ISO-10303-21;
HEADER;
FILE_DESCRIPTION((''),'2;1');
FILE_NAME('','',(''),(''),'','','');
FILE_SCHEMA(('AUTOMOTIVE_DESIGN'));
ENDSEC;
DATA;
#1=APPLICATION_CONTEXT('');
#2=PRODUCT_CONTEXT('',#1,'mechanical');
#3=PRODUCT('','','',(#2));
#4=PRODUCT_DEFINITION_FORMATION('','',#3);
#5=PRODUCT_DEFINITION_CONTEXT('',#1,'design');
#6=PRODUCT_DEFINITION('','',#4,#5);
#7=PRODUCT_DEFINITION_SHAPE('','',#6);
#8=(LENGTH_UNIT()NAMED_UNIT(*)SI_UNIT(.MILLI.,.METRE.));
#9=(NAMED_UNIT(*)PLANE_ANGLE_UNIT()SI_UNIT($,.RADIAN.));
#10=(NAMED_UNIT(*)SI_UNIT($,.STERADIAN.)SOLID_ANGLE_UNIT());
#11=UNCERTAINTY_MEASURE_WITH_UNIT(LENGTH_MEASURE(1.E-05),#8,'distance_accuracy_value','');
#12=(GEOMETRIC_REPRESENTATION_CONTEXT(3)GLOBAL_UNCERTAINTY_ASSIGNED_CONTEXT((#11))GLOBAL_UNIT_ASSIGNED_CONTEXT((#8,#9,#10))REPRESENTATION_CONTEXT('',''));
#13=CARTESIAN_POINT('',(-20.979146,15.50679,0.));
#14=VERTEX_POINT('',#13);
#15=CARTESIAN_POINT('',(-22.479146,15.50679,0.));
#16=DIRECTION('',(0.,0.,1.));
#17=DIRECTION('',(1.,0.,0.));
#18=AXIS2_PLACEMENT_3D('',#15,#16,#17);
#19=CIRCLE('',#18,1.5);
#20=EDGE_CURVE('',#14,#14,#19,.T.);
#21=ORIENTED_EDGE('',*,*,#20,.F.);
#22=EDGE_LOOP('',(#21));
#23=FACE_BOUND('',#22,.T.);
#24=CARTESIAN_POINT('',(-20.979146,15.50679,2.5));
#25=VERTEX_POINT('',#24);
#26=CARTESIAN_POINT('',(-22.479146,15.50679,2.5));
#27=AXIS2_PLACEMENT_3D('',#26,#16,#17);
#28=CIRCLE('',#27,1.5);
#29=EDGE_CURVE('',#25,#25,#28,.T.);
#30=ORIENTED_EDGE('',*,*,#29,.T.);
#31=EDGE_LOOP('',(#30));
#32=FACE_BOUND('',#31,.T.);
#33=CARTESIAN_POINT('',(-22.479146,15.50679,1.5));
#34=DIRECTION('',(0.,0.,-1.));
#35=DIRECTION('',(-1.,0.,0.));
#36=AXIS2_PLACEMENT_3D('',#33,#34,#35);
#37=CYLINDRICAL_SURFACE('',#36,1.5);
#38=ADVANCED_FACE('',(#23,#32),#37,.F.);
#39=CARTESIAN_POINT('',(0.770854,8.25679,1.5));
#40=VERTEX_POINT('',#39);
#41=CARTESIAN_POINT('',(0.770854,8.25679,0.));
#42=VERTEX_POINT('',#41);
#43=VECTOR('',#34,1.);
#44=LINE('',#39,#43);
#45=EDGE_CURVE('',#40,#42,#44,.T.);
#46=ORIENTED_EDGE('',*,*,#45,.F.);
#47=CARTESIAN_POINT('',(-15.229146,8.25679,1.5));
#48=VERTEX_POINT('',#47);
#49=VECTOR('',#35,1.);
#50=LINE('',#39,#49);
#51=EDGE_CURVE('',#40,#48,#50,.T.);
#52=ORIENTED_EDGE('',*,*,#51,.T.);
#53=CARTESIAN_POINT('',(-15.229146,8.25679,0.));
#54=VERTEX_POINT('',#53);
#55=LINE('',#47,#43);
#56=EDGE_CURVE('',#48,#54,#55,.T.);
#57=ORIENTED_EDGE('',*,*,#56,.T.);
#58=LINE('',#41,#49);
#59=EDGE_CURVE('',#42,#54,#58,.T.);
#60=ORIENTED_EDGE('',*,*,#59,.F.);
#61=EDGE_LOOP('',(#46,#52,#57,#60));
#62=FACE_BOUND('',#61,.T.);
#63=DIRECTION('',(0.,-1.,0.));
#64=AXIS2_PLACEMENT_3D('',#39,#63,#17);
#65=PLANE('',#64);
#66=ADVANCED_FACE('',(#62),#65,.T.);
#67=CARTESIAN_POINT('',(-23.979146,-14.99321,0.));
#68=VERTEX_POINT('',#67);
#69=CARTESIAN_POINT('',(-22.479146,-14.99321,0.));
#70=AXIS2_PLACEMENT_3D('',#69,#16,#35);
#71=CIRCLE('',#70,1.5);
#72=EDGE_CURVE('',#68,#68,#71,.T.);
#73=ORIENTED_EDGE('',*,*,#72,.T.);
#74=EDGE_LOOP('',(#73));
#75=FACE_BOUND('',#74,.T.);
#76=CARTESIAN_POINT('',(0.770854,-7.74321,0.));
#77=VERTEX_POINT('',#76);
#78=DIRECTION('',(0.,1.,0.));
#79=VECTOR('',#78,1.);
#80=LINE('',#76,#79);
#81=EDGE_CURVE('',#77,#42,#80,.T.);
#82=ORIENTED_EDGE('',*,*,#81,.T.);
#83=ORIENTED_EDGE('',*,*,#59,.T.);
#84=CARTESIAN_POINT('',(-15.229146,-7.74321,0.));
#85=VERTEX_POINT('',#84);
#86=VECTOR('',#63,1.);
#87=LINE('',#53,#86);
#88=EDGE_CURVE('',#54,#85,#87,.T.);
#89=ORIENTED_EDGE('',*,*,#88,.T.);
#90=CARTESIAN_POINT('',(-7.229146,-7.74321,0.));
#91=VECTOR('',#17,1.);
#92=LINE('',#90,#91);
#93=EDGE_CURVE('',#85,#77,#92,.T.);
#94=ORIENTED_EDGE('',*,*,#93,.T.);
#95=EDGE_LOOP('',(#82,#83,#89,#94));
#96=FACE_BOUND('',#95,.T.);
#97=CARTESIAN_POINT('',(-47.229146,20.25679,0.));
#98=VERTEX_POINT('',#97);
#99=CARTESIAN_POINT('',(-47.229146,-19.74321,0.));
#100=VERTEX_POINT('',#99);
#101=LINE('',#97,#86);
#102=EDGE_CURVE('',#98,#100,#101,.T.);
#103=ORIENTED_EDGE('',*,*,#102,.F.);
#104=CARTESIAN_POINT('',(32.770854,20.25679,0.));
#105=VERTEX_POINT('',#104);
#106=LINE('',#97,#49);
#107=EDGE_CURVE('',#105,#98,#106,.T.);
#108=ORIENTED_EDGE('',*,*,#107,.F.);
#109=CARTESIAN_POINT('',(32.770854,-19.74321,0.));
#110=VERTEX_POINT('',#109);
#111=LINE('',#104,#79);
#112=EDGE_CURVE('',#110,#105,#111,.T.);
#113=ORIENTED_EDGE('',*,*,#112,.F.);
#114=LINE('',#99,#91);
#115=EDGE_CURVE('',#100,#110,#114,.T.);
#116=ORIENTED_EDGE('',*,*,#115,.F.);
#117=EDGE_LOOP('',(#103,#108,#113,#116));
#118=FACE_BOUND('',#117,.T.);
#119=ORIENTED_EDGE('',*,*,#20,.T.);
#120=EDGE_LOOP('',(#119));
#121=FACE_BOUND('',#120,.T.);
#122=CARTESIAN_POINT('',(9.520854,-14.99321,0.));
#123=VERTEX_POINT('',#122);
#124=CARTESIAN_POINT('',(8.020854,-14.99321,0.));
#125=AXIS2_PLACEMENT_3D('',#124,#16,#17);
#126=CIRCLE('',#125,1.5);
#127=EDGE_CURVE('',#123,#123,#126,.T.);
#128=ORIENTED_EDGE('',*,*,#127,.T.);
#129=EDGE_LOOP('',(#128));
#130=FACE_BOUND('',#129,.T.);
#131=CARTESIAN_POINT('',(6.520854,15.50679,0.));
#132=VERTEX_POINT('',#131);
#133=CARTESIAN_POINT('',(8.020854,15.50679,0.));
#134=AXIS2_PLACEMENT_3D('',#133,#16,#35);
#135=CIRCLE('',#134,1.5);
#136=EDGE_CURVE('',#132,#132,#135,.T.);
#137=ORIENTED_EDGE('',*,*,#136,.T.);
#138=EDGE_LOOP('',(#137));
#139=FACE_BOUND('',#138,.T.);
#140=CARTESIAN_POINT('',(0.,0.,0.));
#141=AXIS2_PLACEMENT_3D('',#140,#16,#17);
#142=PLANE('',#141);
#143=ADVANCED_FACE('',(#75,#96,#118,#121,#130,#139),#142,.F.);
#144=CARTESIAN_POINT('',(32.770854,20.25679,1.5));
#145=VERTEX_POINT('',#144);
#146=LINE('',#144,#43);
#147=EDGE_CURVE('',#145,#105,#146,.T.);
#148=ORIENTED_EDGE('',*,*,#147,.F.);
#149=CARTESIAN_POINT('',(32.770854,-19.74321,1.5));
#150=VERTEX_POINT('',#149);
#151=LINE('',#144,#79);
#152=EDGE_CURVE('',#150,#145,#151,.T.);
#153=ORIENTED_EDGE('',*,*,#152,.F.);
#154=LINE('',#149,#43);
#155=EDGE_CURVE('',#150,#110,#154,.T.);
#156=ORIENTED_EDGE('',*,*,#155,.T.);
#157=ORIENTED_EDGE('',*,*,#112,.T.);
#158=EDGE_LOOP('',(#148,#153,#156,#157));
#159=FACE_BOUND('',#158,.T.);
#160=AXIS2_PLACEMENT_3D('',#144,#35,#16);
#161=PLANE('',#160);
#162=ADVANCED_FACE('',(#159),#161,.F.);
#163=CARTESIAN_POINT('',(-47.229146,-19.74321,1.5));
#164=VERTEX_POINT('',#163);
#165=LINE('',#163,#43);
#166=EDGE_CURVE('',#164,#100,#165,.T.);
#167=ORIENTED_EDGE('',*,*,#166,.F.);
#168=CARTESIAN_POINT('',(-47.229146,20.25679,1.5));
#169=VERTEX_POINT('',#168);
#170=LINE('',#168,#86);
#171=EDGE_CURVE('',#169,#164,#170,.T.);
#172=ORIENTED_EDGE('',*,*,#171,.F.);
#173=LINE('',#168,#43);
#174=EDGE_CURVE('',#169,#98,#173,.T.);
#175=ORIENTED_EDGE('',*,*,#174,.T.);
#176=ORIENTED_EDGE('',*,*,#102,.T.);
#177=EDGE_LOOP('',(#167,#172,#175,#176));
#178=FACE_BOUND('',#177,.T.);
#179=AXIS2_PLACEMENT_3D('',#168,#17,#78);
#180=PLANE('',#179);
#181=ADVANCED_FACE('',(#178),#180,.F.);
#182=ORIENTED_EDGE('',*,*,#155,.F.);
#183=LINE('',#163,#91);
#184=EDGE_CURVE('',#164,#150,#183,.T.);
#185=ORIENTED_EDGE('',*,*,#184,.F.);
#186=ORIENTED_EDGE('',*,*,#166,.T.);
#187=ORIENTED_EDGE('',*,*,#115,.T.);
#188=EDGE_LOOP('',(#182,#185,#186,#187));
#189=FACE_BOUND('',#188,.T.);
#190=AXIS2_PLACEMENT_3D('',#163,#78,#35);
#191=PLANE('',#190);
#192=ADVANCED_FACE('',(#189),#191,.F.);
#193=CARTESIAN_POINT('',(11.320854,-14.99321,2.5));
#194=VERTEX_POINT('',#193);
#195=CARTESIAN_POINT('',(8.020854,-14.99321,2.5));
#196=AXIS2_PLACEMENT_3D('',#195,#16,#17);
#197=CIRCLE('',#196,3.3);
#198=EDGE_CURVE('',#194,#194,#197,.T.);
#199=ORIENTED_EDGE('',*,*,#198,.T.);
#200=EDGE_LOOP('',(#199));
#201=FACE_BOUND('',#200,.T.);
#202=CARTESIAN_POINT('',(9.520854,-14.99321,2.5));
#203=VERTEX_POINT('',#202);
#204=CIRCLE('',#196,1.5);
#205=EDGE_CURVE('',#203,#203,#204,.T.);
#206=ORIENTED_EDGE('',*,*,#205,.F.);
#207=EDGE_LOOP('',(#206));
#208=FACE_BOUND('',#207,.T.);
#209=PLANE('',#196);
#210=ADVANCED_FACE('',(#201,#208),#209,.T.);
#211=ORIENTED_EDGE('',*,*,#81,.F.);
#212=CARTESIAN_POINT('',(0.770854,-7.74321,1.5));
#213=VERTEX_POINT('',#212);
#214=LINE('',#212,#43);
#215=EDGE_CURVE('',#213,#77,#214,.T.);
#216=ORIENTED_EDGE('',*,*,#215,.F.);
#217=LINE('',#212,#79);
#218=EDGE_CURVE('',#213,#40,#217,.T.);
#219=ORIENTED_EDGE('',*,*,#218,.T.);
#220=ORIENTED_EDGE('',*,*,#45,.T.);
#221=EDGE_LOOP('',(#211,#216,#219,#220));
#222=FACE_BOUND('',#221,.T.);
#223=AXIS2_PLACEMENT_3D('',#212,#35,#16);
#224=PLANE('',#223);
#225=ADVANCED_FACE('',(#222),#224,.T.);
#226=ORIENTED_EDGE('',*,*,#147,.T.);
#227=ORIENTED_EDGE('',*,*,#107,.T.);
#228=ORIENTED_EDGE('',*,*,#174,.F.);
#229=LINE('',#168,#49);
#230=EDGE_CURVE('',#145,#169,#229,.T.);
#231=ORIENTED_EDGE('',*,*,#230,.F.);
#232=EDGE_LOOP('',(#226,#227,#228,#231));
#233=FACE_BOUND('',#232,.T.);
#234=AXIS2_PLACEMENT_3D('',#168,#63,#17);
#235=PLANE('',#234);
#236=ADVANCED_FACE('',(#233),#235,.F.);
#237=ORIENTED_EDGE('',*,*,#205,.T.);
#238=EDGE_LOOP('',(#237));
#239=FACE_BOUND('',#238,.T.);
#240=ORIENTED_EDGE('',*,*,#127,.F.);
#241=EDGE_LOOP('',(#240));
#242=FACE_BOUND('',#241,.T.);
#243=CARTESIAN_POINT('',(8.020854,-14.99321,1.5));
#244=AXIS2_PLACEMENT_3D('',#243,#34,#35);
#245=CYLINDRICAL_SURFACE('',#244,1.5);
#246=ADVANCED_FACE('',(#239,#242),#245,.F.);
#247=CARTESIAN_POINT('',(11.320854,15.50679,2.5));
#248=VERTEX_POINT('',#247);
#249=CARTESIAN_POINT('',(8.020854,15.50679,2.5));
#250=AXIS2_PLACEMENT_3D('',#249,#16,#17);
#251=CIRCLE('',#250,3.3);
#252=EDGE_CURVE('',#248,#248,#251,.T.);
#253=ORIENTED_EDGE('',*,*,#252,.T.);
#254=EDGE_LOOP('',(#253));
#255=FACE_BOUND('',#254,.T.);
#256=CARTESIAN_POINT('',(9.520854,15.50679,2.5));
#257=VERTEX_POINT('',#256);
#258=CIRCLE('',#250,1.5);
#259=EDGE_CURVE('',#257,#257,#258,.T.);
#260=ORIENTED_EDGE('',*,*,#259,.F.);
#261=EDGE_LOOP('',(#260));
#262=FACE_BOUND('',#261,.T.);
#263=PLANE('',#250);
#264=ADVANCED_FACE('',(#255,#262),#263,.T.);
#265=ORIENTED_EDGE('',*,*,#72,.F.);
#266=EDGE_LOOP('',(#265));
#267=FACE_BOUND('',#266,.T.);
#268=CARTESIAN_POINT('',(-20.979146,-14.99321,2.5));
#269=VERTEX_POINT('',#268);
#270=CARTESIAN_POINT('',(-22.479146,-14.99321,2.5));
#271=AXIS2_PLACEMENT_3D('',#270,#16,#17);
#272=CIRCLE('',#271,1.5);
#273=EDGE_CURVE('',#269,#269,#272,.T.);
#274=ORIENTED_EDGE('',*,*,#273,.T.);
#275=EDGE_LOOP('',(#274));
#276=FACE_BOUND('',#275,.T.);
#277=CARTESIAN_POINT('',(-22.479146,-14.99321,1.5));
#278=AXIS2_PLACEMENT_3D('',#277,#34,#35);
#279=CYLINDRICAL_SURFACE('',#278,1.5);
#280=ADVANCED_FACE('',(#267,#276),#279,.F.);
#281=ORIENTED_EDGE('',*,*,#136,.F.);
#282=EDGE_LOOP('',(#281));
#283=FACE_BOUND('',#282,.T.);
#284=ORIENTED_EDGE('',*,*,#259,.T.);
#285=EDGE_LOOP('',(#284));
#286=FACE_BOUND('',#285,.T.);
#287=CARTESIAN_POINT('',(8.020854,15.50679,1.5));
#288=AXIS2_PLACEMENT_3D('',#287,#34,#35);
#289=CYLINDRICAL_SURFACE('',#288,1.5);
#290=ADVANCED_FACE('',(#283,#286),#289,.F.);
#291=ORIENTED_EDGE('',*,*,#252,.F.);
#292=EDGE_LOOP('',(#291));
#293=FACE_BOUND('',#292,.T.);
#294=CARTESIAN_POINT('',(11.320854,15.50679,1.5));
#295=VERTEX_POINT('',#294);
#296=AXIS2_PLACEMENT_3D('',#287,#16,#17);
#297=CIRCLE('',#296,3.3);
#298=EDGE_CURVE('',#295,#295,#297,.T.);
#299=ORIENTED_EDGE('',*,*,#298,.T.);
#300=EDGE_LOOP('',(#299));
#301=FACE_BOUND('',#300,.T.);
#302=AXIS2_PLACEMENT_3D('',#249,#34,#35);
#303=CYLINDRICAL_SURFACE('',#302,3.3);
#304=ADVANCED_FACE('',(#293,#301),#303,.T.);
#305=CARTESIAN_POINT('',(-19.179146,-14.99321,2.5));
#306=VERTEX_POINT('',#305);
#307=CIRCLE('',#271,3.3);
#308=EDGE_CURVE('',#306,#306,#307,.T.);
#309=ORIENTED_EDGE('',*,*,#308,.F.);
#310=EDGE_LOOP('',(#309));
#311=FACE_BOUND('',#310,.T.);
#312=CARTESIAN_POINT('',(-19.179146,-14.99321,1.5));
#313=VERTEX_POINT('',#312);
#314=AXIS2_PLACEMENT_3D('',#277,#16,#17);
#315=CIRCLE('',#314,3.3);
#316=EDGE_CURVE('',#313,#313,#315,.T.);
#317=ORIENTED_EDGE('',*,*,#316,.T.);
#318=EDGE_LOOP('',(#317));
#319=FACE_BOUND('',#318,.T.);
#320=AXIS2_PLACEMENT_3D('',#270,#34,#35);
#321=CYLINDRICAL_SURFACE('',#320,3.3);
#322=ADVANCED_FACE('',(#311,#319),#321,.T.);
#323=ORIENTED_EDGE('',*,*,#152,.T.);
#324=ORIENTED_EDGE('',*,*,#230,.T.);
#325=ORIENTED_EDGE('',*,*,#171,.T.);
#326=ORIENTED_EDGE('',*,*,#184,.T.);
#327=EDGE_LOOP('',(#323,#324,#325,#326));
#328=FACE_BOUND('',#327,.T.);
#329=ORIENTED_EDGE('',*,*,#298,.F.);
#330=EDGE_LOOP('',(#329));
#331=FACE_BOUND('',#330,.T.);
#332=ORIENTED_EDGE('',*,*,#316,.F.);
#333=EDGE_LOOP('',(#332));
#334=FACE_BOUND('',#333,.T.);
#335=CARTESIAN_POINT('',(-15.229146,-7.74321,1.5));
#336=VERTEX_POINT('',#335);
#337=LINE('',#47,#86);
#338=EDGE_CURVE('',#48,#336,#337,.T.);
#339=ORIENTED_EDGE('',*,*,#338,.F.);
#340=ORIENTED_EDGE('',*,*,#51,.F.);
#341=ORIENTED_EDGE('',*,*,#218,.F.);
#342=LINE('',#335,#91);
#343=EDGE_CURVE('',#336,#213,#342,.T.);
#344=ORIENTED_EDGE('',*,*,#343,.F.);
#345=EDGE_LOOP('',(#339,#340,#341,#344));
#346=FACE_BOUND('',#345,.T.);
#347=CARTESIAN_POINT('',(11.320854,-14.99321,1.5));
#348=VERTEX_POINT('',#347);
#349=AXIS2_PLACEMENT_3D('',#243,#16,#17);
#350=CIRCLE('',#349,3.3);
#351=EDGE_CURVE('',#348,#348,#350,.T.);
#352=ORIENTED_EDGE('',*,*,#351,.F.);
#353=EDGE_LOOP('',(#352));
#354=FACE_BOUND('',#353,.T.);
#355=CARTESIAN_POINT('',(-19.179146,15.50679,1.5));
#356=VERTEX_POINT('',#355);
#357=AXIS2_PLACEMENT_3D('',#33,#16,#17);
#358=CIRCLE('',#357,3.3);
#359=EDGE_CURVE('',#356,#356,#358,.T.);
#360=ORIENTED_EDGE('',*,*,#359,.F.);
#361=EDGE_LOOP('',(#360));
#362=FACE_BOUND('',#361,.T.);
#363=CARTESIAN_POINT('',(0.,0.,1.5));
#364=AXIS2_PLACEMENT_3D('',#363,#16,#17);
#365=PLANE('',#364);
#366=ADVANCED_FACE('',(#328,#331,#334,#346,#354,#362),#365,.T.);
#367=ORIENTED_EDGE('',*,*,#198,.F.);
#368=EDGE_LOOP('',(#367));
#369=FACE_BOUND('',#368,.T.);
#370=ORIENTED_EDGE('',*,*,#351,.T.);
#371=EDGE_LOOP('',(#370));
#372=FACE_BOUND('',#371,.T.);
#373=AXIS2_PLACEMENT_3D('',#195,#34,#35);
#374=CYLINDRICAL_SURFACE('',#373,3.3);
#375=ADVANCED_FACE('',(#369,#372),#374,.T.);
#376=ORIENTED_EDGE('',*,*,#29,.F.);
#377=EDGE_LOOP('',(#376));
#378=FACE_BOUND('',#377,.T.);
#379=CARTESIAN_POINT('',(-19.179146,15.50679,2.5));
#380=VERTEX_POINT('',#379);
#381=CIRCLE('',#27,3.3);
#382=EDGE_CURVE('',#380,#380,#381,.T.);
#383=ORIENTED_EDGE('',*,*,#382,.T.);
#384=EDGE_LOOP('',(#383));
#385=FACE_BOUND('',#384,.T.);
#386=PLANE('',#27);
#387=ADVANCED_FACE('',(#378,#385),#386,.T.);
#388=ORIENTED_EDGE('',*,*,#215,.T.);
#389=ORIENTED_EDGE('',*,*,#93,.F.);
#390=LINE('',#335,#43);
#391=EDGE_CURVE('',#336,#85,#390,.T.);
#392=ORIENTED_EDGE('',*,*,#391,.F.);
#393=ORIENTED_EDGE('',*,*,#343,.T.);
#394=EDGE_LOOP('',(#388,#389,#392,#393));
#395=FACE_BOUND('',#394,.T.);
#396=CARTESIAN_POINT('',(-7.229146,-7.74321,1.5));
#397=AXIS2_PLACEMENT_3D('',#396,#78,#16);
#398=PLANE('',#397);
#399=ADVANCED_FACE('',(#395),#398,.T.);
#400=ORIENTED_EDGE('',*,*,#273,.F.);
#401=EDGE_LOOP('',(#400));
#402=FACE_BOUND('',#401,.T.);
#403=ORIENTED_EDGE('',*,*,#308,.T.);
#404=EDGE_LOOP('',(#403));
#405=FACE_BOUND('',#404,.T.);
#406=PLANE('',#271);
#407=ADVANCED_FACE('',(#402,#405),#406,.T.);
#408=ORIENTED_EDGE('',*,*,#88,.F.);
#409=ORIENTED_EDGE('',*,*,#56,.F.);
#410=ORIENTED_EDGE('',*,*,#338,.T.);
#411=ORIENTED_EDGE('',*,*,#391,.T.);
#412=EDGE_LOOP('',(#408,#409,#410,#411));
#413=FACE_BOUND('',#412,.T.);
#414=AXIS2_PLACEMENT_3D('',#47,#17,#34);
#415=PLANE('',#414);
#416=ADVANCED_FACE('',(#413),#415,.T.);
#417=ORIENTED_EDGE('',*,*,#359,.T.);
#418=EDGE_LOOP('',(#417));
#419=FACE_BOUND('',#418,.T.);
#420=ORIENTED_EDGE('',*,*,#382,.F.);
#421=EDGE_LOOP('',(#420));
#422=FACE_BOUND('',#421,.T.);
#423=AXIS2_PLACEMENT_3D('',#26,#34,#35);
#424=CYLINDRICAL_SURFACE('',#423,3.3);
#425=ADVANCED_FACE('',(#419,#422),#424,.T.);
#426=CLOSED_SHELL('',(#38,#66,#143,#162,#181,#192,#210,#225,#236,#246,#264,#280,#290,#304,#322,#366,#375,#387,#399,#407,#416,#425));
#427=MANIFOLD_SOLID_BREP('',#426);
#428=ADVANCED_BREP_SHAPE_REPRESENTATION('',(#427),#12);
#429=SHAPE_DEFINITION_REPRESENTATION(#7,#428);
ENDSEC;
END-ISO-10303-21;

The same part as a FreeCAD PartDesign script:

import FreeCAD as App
import Part
import Sketcher
from FreeCAD import Vector


def add_polygon(sketch, points):
    """Adds a closed chain of lines whose ends are joined by coincident constraints."""
    first, n = sketch.GeometryCount, len(points)
    for a, b in zip(points, points[1:] + points[:1]):
        sketch.addGeometry(Part.LineSegment(App.Vector(*a, 0), App.Vector(*b, 0)), False)
    for i in range(n):
        sketch.addConstraint(Sketcher.Constraint("Coincident", first + i, 2, first + (i + 1) % n, 1))

doc = App.newDocument("Part")
params = doc.addObject("Spreadsheet::Sheet", "Params")
for row, (alias, value) in enumerate([
    ("sketch1_diameter", "3 mm"),
    ("sketch1_width", "80 mm"),
    ("sketch1_width2", "16 mm"),
    ("sketch1_height", "40 mm"),
    ("pad1_length", "1.5 mm"),
    ("sketch2_diameter", "3 mm"),
    ("sketch2_diameter2", "6.6 mm"),
    ("pad2_length", "1 mm"),
], start=1):
    params.set(f"A{row}", alias)
    params.set(f"B{row}", "=" + value)
    params.setAlias(f"B{row}", alias)

body = doc.addObject("PartDesign::Body", "Body")

sketch1 = body.newObject("Sketcher::SketchObject", "Sketch")
sketch1.AttachmentSupport = (doc.getObject("XY_Plane"), [""])
sketch1.MapMode = "FlatFace"
add_polygon(sketch1, [(-47.229146, 20.25679), (-47.229146, -19.74321), (32.770854, -19.74321), (32.770854, 20.25679)])
sketch1.addGeometry(Part.Circle(Vector(-22.479146, -14.99321, 0), Vector(0, 0, 1), 1.5), False)
sketch1.addGeometry(Part.Circle(Vector(8.020854, -14.99321, 0), Vector(0, 0, 1), 1.5), False)
sketch1.addGeometry(Part.Circle(Vector(-22.479146, 15.50679, 0), Vector(0, 0, 1), 1.5), False)
add_polygon(sketch1, [(0.770854, -7.74321), (-15.229146, -7.74321), (-15.229146, 8.25679), (0.770854, 8.25679)])
sketch1.addGeometry(Part.Circle(Vector(8.020854, 15.50679, 0), Vector(0, 0, 1), 1.5), False)
sketch1.addConstraint(Sketcher.Constraint("Vertical", 0))
sketch1.addConstraint(Sketcher.Constraint("Horizontal", 1))
sketch1.addConstraint(Sketcher.Constraint("Vertical", 2))
sketch1.addConstraint(Sketcher.Constraint("Horizontal", 3))
sketch1.addConstraint(Sketcher.Constraint("Horizontal", 7))
sketch1.addConstraint(Sketcher.Constraint("Vertical", 8))
sketch1.addConstraint(Sketcher.Constraint("Horizontal", 9))
sketch1.addConstraint(Sketcher.Constraint("Vertical", 10))
sketch1.addConstraint(Sketcher.Constraint("Equal", 4, 5))
sketch1.addConstraint(Sketcher.Constraint("Equal", 5, 6))
sketch1.addConstraint(Sketcher.Constraint("Equal", 6, 11))
sketch1.addConstraint(Sketcher.Constraint("Horizontal", 4, 3, 5, 3))
sketch1.addConstraint(Sketcher.Constraint("Horizontal", 6, 3, 11, 3))
sketch1.addConstraint(Sketcher.Constraint("Vertical", 4, 3, 6, 3))
sketch1.addConstraint(Sketcher.Constraint("Vertical", 5, 3, 11, 3))
sketch1.addConstraint(Sketcher.Constraint("Equal", 9, 8))
sketch1.addConstraint(Sketcher.Constraint("Diameter", 4, 3.0))
sketch1.addConstraint(Sketcher.Constraint("DistanceX", 1, 1, 1, 2, 80.0))
sketch1.addConstraint(Sketcher.Constraint("DistanceX", 7, 2, 7, 1, 16.0))
sketch1.addConstraint(Sketcher.Constraint("DistanceY", 0, 2, 0, 1, 40.0))
sketch1.addConstraint(Sketcher.Constraint("DistanceX", 0, 2, 7, 2, 32.0))
sketch1.addConstraint(Sketcher.Constraint("DistanceY", 0, 2, 7, 2, 12.0))
sketch1.addConstraint(Sketcher.Constraint("DistanceX", 4, 3, 5, 3, 30.5))
sketch1.addConstraint(Sketcher.Constraint("DistanceY", 4, 3, 6, 3, 30.5))
sketch1.addConstraint(Sketcher.Constraint("DistanceX", 0, 2, 4, 3, 24.75))
sketch1.addConstraint(Sketcher.Constraint("DistanceY", 0, 2, 4, 3, 4.75))
sketch1.addConstraint(Sketcher.Constraint("DistanceY", 4, 3, -1, 1, 14.99321))
sketch1.addConstraint(Sketcher.Constraint("DistanceX", 4, 3, -1, 1, 22.479146))
sketch1.setExpression("Constraints[24]", "Params.sketch1_diameter")
sketch1.setExpression("Constraints[25]", "Params.sketch1_width")
sketch1.setExpression("Constraints[26]", "Params.sketch1_width2")
sketch1.setExpression("Constraints[27]", "Params.sketch1_height")
pad1 = body.newObject("PartDesign::Pad", "Pad")
pad1.Profile = sketch1
pad1.setExpression("Length", "Params.pad1_length")

sketch2 = body.newObject("Sketcher::SketchObject", "Sketch001")
sketch2.AttachmentSupport = (doc.getObject("XY_Plane"), [""])
sketch2.MapMode = "FlatFace"
sketch2.AttachmentOffset = App.Placement(Vector(0, 0, 1.5), App.Rotation())
sketch2.addGeometry(Part.Circle(Vector(-22.479146, 15.50679, 0), Vector(0, 0, 1), 3.3), False)
sketch2.addGeometry(Part.Circle(Vector(-22.479146, 15.50679, 0), Vector(0, 0, 1), 1.5), False)
sketch2.addGeometry(Part.Circle(Vector(8.020854, 15.50679, 0), Vector(0, 0, 1), 3.3), False)
sketch2.addGeometry(Part.Circle(Vector(8.020854, 15.50679, 0), Vector(0, 0, 1), 1.5), False)
sketch2.addGeometry(Part.Circle(Vector(-22.479146, -14.99321, 0), Vector(0, 0, 1), 3.3), False)
sketch2.addGeometry(Part.Circle(Vector(-22.479146, -14.99321, 0), Vector(0, 0, 1), 1.5), False)
sketch2.addGeometry(Part.Circle(Vector(8.020854, -14.99321, 0), Vector(0, 0, 1), 3.3), False)
sketch2.addGeometry(Part.Circle(Vector(8.020854, -14.99321, 0), Vector(0, 0, 1), 1.5), False)
sketch2.addConstraint(Sketcher.Constraint("Coincident", 1, 3, 0, 3))
sketch2.addConstraint(Sketcher.Constraint("Coincident", 3, 3, 2, 3))
sketch2.addConstraint(Sketcher.Constraint("Coincident", 5, 3, 4, 3))
sketch2.addConstraint(Sketcher.Constraint("Coincident", 7, 3, 6, 3))
sketch2.addConstraint(Sketcher.Constraint("Equal", 0, 2))
sketch2.addConstraint(Sketcher.Constraint("Equal", 1, 3))
sketch2.addConstraint(Sketcher.Constraint("Equal", 2, 4))
sketch2.addConstraint(Sketcher.Constraint("Equal", 3, 5))
sketch2.addConstraint(Sketcher.Constraint("Equal", 4, 6))
sketch2.addConstraint(Sketcher.Constraint("Equal", 5, 7))
sketch2.addConstraint(Sketcher.Constraint("Horizontal", 1, 3, 2, 3))
sketch2.addConstraint(Sketcher.Constraint("Horizontal", 5, 3, 6, 3))
sketch2.addConstraint(Sketcher.Constraint("Vertical", 1, 3, 4, 3))
sketch2.addConstraint(Sketcher.Constraint("Vertical", 3, 3, 6, 3))
sketch2.addConstraint(Sketcher.Constraint("Diameter", 1, 3.0))
sketch2.addConstraint(Sketcher.Constraint("Diameter", 0, 6.6))
sketch2.addConstraint(Sketcher.Constraint("DistanceX", 0, 3, 2, 3, 30.5))
sketch2.addConstraint(Sketcher.Constraint("DistanceY", 4, 3, 0, 3, 30.5))
sketch2.addConstraint(Sketcher.Constraint("DistanceY", -1, 1, 0, 3, 15.50679))
sketch2.addConstraint(Sketcher.Constraint("DistanceX", 0, 3, -1, 1, 22.479146))
sketch2.setExpression("Constraints[14]", "Params.sketch2_diameter")
sketch2.setExpression("Constraints[15]", "Params.sketch2_diameter2")
pad2 = body.newObject("PartDesign::Pad", "Pad001")
pad2.Profile = sketch2
pad2.setExpression("Length", "Params.pad2_length")

doc.recompute()
